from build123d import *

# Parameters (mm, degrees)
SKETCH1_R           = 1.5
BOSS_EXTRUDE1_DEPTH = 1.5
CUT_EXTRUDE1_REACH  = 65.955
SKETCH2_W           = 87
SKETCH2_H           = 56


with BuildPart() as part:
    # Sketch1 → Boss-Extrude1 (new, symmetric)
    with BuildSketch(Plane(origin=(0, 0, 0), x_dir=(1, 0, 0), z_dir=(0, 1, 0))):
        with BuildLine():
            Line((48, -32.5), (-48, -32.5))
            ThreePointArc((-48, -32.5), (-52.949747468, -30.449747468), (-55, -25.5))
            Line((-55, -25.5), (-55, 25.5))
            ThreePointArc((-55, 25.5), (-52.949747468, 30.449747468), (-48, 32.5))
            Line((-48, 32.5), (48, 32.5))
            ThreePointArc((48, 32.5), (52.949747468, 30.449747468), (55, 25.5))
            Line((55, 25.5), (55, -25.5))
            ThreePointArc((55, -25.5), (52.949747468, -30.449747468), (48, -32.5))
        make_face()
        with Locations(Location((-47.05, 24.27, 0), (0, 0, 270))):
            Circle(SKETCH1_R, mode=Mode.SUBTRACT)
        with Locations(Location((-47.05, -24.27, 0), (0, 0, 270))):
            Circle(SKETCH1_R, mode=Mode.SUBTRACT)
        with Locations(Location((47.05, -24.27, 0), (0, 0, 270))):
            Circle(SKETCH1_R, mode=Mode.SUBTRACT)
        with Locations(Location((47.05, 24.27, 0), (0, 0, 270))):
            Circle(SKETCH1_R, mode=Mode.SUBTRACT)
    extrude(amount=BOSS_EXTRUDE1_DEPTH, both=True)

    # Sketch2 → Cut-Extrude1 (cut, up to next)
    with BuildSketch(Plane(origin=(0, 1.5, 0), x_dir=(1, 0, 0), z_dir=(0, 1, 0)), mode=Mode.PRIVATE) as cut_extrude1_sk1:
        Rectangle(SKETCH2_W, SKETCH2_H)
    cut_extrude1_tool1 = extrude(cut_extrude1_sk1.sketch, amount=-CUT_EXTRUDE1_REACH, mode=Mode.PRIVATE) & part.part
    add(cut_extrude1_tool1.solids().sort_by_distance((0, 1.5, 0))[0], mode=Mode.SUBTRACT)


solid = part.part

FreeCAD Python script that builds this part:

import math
import FreeCAD as App
import Part
import Sketcher
Q = App.Units.Quantity

doc = App.newDocument("Part")
body = doc.addObject("PartDesign::Body", "Body")

sketch1 = body.newObject("Sketcher::SketchObject", "Sketch")
sketch1.AttachmentSupport = (doc.getObject("XZ_Plane"), [""])
sketch1.MapMode = "FlatFace"
sketch1.addGeometry([
    Part.LineSegment(App.Vector(-48, 32.5, 0), App.Vector(48, 32.5, 0)),
    Part.ArcOfCircle(Part.Circle(App.Vector(48, 25.5, 0), App.Vector(0, 0, 1), 7), math.radians(0), math.radians(90)),
    Part.LineSegment(App.Vector(55, 25.5, 0), App.Vector(55, -25.5, 0)),
    Part.ArcOfCircle(Part.Circle(App.Vector(48, -25.5, 0), App.Vector(0, 0, 1), 7), math.radians(-90), math.radians(0)),
    Part.LineSegment(App.Vector(48, -32.5, 0), App.Vector(-48, -32.5, 0)),
    Part.ArcOfCircle(Part.Circle(App.Vector(-48, -25.5, 0), App.Vector(0, 0, 1), 7), math.radians(-180), math.radians(-90)),
    Part.LineSegment(App.Vector(-55, -25.5, 0), App.Vector(-55, 25.5, 0)),
    Part.ArcOfCircle(Part.Circle(App.Vector(-48, 25.5, 0), App.Vector(0, 0, 1), 7), math.radians(90), math.radians(180)),
    Part.Circle(App.Vector(47.05, 24.27, 0), App.Vector(0, 0, 1), 1.5),
    Part.Circle(App.Vector(-47.05, 24.27, 0), App.Vector(0, 0, 1), 1.5),
    Part.Circle(App.Vector(47.05, -24.27, 0), App.Vector(0, 0, 1), 1.5),
    Part.Circle(App.Vector(-47.05, -24.27, 0), App.Vector(0, 0, 1), 1.5),
], False)
sketch1.addConstraint([
    Sketcher.Constraint("Tangent", 0, 2, 1, 2),
    Sketcher.Constraint("Tangent", 1, 1, 2, 1),
    Sketcher.Constraint("Tangent", 2, 2, 3, 2),
    Sketcher.Constraint("Tangent", 3, 1, 4, 1),
    Sketcher.Constraint("Tangent", 4, 2, 5, 2),
    Sketcher.Constraint("Tangent", 5, 1, 6, 1),
    Sketcher.Constraint("Tangent", 6, 2, 7, 2),
    Sketcher.Constraint("Tangent", 7, 1, 0, 1),
    Sketcher.Constraint("Horizontal", 0),
    Sketcher.Constraint("Vertical", 2),
    Sketcher.Constraint("Horizontal", 4),
    Sketcher.Constraint("Vertical", 6),
    Sketcher.Constraint("Equal", 1, 3),
    Sketcher.Constraint("Equal", 3, 5),
    Sketcher.Constraint("Equal", 5, 7),
    Sketcher.Constraint("Equal", 8, 9),
    Sketcher.Constraint("Equal", 9, 10),
    Sketcher.Constraint("Equal", 10, 11),
    Sketcher.Constraint("Symmetric", 1, 3, 5, 3, -1, 1),
    Sketcher.Constraint("Symmetric", 9, 3, 10, 3, -1, 1),
    Sketcher.Constraint("Symmetric", 8, 3, 11, 3, -1, 1),
    Sketcher.Constraint("Symmetric", 8, 3, 9, 3, -2),
    Sketcher.Constraint("Diameter", 8, Q("3 mm")),
    Sketcher.Constraint("Radius", 1, Q("7 mm")),
    Sketcher.Constraint("DistanceX", 0, 1, 0, 2, Q("96 mm")),
    Sketcher.Constraint("DistanceY", 2, 2, 2, 1, Q("51 mm")),
    Sketcher.Constraint("DistanceX", 9, 3, 8, 3, Q("94.1 mm")),
    Sketcher.Constraint("DistanceY", -1, 1, 8, 3, Q("24.27 mm")),
])
pad1 = body.newObject("PartDesign::Pad", "Pad")
pad1.Profile = sketch1
pad1.Length = 3
pad1.Midplane = True

sketch2 = body.newObject("Sketcher::SketchObject", "Sketch001")
sketch2.AttachmentSupport = (doc.getObject("XZ_Plane"), [""])
sketch2.MapMode = "FlatFace"
sketch2.AttachmentOffset = App.Placement(App.Vector(0, 0, -1.5), App.Rotation())
sketch2.addGeometry([
    Part.LineSegment(App.Vector(-43.5, -28, 0), App.Vector(-43.5, 28, 0)),
    Part.LineSegment(App.Vector(-43.5, 28, 0), App.Vector(43.5, 28, 0)),
    Part.LineSegment(App.Vector(43.5, 28, 0), App.Vector(43.5, -28, 0)),
    Part.LineSegment(App.Vector(43.5, -28, 0), App.Vector(-43.5, -28, 0)),
], False)
sketch2.addConstraint([
    Sketcher.Constraint("Coincident", 0, 2, 1, 1),
    Sketcher.Constraint("Coincident", 1, 2, 2, 1),
    Sketcher.Constraint("Coincident", 2, 2, 3, 1),
    Sketcher.Constraint("Coincident", 3, 2, 0, 1),
    Sketcher.Constraint("Vertical", 0),
    Sketcher.Constraint("Horizontal", 1),
    Sketcher.Constraint("Vertical", 2),
    Sketcher.Constraint("Horizontal", 3),
    Sketcher.Constraint("Symmetric", 0, 2, 2, 2, -1, 1),
    Sketcher.Constraint("DistanceX", 1, 1, 1, 2, Q("87 mm")),
    Sketcher.Constraint("DistanceY", 0, 1, 0, 2, Q("56 mm")),
])
pocket1 = body.newObject("PartDesign::Pocket", "Pocket")
pocket1.Profile = sketch2
pocket1.Type = "UpToFirst"
pocket1.Reversed = True

doc.recompute()
